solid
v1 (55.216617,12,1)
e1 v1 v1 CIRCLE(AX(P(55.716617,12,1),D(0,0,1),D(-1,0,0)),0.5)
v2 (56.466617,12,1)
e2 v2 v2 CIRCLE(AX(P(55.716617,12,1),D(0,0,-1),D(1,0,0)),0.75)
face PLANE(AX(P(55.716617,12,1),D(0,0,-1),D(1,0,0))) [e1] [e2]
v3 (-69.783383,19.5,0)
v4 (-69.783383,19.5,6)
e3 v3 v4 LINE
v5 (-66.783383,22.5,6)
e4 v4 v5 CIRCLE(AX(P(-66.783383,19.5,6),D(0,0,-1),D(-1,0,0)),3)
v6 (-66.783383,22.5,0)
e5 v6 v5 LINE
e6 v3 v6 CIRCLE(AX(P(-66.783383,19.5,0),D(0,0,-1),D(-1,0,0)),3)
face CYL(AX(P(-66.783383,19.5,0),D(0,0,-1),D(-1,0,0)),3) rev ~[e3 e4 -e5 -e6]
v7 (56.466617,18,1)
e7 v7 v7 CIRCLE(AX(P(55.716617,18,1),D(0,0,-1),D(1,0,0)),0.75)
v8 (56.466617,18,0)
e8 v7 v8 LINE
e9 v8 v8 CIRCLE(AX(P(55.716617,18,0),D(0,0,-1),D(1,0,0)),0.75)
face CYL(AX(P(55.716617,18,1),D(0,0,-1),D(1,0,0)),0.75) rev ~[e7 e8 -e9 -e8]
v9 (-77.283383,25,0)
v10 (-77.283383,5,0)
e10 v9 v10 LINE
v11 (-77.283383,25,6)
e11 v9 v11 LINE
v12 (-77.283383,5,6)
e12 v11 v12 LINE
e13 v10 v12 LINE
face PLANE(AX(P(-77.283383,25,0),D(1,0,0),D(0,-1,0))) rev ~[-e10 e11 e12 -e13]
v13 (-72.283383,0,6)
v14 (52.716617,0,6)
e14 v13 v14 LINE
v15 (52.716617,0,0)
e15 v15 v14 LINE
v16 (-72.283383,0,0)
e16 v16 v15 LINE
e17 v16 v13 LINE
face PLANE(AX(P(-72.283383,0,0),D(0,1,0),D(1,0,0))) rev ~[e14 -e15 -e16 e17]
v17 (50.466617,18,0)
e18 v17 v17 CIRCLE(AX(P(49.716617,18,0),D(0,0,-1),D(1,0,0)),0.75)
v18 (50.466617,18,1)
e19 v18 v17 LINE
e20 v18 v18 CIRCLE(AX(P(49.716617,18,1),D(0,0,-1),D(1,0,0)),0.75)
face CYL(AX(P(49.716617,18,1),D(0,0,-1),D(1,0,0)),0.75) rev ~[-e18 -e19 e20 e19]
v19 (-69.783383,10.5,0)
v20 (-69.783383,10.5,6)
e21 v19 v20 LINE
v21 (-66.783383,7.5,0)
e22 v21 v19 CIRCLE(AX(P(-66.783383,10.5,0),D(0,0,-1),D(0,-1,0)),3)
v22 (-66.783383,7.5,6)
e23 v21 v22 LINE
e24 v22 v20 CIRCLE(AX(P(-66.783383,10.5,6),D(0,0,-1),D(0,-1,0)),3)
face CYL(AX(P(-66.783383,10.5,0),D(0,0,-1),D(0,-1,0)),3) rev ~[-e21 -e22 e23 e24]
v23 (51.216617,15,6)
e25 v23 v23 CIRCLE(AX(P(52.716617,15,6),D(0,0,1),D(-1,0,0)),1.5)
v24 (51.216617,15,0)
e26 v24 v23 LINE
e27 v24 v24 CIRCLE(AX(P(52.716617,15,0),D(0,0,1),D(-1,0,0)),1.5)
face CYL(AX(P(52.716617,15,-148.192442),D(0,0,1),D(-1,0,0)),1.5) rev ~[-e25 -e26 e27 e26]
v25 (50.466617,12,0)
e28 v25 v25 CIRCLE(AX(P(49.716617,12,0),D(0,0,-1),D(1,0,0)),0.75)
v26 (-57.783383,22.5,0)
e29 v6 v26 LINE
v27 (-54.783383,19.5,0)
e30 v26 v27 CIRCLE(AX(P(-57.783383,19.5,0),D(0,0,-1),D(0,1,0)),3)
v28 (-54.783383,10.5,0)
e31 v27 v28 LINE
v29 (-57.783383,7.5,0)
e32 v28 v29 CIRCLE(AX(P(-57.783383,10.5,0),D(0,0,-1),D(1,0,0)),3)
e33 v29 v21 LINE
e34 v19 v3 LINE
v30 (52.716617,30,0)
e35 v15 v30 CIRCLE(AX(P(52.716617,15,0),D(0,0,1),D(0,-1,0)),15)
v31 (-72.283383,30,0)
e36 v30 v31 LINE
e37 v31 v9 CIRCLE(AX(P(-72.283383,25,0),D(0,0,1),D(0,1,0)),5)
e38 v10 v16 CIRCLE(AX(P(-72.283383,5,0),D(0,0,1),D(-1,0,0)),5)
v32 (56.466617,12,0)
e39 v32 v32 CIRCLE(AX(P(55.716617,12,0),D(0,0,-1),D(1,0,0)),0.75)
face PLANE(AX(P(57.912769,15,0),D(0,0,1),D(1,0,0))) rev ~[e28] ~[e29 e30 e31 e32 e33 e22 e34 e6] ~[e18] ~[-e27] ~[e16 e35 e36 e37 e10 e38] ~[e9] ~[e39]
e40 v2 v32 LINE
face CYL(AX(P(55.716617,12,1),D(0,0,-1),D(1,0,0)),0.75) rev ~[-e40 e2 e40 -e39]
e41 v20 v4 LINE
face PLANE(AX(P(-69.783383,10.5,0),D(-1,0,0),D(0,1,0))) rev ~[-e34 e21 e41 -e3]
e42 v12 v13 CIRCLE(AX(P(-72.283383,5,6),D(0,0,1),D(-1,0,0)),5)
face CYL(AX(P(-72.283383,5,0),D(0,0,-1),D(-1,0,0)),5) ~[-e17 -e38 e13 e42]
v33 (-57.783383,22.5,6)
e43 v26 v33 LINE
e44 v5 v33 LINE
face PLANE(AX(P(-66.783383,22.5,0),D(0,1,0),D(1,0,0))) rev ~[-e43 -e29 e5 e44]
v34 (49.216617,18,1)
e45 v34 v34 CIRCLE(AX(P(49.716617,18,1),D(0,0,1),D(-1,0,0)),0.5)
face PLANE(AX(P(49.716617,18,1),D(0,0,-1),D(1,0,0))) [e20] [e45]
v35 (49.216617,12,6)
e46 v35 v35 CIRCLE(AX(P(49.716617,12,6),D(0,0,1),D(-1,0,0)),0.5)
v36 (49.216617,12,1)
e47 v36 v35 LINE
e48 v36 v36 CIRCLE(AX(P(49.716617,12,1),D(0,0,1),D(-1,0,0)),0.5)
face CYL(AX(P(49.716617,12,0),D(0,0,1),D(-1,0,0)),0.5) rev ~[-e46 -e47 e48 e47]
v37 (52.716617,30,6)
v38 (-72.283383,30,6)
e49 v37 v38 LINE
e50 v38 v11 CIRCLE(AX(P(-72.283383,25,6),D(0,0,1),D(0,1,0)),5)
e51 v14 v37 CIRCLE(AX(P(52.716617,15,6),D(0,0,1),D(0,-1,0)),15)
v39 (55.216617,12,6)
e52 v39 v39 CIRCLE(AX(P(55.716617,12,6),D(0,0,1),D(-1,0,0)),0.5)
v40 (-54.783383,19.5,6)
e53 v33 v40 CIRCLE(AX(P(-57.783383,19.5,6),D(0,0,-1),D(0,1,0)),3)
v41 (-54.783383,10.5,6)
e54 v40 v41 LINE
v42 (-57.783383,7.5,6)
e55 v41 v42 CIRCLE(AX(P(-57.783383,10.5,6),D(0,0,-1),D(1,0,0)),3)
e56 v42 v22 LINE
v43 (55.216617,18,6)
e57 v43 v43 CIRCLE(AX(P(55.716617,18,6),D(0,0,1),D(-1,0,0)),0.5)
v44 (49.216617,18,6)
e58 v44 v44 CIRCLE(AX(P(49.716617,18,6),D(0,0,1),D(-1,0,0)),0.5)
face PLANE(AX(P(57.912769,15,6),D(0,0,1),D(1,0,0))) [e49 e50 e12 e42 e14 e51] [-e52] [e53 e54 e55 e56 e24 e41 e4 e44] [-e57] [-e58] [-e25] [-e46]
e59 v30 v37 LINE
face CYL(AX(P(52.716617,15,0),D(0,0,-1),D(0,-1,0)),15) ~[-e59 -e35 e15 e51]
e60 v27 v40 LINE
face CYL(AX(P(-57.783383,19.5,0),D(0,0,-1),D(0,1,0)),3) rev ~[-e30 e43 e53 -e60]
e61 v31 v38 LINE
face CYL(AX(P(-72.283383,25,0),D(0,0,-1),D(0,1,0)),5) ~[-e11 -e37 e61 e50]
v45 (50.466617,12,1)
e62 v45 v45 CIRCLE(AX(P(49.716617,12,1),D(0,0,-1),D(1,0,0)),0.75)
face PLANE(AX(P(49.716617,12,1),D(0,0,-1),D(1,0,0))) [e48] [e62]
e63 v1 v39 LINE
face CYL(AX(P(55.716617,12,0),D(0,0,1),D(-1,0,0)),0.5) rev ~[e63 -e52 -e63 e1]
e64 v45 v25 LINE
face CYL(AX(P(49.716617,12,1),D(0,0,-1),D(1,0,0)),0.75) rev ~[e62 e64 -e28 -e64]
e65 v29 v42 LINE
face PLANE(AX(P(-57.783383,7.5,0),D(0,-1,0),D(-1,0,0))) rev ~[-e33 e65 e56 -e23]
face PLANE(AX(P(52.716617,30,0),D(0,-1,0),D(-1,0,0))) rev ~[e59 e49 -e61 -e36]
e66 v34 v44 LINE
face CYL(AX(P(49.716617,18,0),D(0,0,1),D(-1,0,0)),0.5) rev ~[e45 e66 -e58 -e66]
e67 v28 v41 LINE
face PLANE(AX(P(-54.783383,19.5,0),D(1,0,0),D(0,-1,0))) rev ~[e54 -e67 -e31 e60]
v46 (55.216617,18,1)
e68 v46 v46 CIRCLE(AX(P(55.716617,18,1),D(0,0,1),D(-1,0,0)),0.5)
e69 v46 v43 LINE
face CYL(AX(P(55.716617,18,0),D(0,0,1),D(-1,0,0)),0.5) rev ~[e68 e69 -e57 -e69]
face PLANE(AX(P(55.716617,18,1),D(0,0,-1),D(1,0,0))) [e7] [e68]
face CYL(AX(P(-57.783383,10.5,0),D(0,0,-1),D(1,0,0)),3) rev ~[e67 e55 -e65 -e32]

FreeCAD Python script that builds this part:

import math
import FreeCAD as App
import Part
import Sketcher
from FreeCAD import Vector

doc = App.newDocument("Part")
body = doc.addObject("PartDesign::Body", "Body")

sketch1 = body.newObject("Sketcher::SketchObject", "Sketch")
sketch1.AttachmentSupport = (doc.getObject("XY_Plane"), [""])
sketch1.MapMode = "FlatFace"
sketch1.addGeometry(Part.ArcOfCircle(Part.Circle(Vector(52.716617, 15, 0), Vector(0, 0, 1), 15), math.radians(-90), math.radians(90)), False)
sketch1.addGeometry(Part.LineSegment(Vector(52.716617, 30, 0), Vector(-72.283383, 30, 0)), False)
sketch1.addGeometry(Part.ArcOfCircle(Part.Circle(Vector(-72.283383, 25, 0), Vector(0, 0, 1), 5), math.radians(90), math.radians(180)), False)
sketch1.addGeometry(Part.LineSegment(Vector(-77.283383, 25, 0), Vector(-77.283383, 5, 0)), False)
sketch1.addGeometry(Part.ArcOfCircle(Part.Circle(Vector(-72.283383, 5, 0), Vector(0, 0, 1), 5), math.radians(180), math.radians(270)), False)
sketch1.addGeometry(Part.LineSegment(Vector(-72.283383, 0, 0), Vector(52.716617, 0, 0)), False)
sketch1.addGeometry(Part.ArcOfCircle(Part.Circle(Vector(-66.783383, 19.5, 0), Vector(0, 0, 1), 3), math.radians(90), math.radians(180)), False)
sketch1.addGeometry(Part.LineSegment(Vector(-66.783383, 22.5, 0), Vector(-57.783383, 22.5, 0)), False)
sketch1.addGeometry(Part.ArcOfCircle(Part.Circle(Vector(-57.783383, 19.5, 0), Vector(0, 0, 1), 3), math.radians(0), math.radians(90)), False)
sketch1.addGeometry(Part.LineSegment(Vector(-54.783383, 19.5, 0), Vector(-54.783383, 10.5, 0)), False)
sketch1.addGeometry(Part.ArcOfCircle(Part.Circle(Vector(-57.783383, 10.5, 0), Vector(0, 0, 1), 3), math.radians(-90), math.radians(0)), False)
sketch1.addGeometry(Part.LineSegment(Vector(-57.783383, 7.5, 0), Vector(-66.783383, 7.5, 0)), False)
sketch1.addGeometry(Part.ArcOfCircle(Part.Circle(Vector(-66.783383, 10.5, 0), Vector(0, 0, 1), 3), math.radians(180), math.radians(270)), False)
sketch1.addGeometry(Part.LineSegment(Vector(-69.783383, 10.5, 0), Vector(-69.783383, 19.5, 0)), False)
sketch1.addConstraint(Sketcher.Constraint("Tangent", 0, 2, 1, 1))
sketch1.addConstraint(Sketcher.Constraint("Tangent", 1, 2, 2, 1))
sketch1.addConstraint(Sketcher.Constraint("Tangent", 2, 2, 3, 1))
sketch1.addConstraint(Sketcher.Constraint("Tangent", 3, 2, 4, 1))
sketch1.addConstraint(Sketcher.Constraint("Tangent", 4, 2, 5, 1))
sketch1.addConstraint(Sketcher.Constraint("Tangent", 5, 2, 0, 1))
sketch1.addConstraint(Sketcher.Constraint("Tangent", 6, 1, 7, 1))
sketch1.addConstraint(Sketcher.Constraint("Tangent", 7, 2, 8, 2))
sketch1.addConstraint(Sketcher.Constraint("Tangent", 8, 1, 9, 1))
sketch1.addConstraint(Sketcher.Constraint("Tangent", 9, 2, 10, 2))
sketch1.addConstraint(Sketcher.Constraint("Tangent", 10, 1, 11, 1))
sketch1.addConstraint(Sketcher.Constraint("Tangent", 11, 2, 12, 2))
sketch1.addConstraint(Sketcher.Constraint("Tangent", 12, 1, 13, 1))
sketch1.addConstraint(Sketcher.Constraint("Tangent", 13, 2, 6, 2))
sketch1.addConstraint(Sketcher.Constraint("Horizontal", 1))
sketch1.addConstraint(Sketcher.Constraint("Vertical", 3))
sketch1.addConstraint(Sketcher.Constraint("Horizontal", 5))
sketch1.addConstraint(Sketcher.Constraint("Horizontal", 7))
sketch1.addConstraint(Sketcher.Constraint("Vertical", 9))
sketch1.addConstraint(Sketcher.Constraint("Horizontal", 11))
sketch1.addConstraint(Sketcher.Constraint("Vertical", 13))
sketch1.addConstraint(Sketcher.Constraint("Equal", 2, 4))
sketch1.addConstraint(Sketcher.Constraint("Equal", 6, 8))
sketch1.addConstraint(Sketcher.Constraint("Equal", 8, 10))
sketch1.addConstraint(Sketcher.Constraint("Equal", 10, 12))
sketch1.addConstraint(Sketcher.Constraint("PointOnObject", 4, 2, -1))
sketch1.addConstraint(Sketcher.Constraint("Equal", 11, 9))
sketch1.addConstraint(Sketcher.Constraint("Radius", 0, 15.0))
sketch1.addConstraint(Sketcher.Constraint("Radius", 2, 5.0))
sketch1.addConstraint(Sketcher.Constraint("Radius", 6, 3.0))
sketch1.addConstraint(Sketcher.Constraint("DistanceX", 1, 2, 1, 1, 125.0))
sketch1.addConstraint(Sketcher.Constraint("DistanceX", 7, 1, 7, 2, 9.0))
sketch1.addConstraint(Sketcher.Constraint("DistanceY", -1, 1, 6, 3, 19.5))
sketch1.addConstraint(Sketcher.Constraint("DistanceX", 2, 3, 6, 3, 5.5))
sketch1.addConstraint(Sketcher.Constraint("DistanceX", -1, 1, 0, 3, 52.716617))
pad1 = body.newObject("PartDesign::Pad", "Pad")
pad1.Profile = sketch1
pad1.Length = 6

sketch2 = body.newObject("Sketcher::SketchObject", "Sketch001")
sketch2.AttachmentSupport = (doc.getObject("XY_Plane"), [""])
sketch2.MapMode = "FlatFace"
sketch2.addGeometry(Part.Circle(Vector(52.716617, 15, 0), Vector(0, 0, 1), 1.5), False)
sketch2.addConstraint(Sketcher.Constraint("Diameter", 0, 3.0))
sketch2.addConstraint(Sketcher.Constraint("DistanceY", -1, 1, 0, 3, 15.0))
sketch2.addConstraint(Sketcher.Constraint("DistanceX", -1, 1, 0, 3, 52.716617))
doc.recompute()
hole = body.newObject("PartDesign::Hole", "Hole")
hole.Profile = sketch2
hole.ThreadType = "None"
hole.Diameter = 3
hole.DepthType = "ThroughAll"
hole.Reversed = True

sketch3 = body.newObject("Sketcher::SketchObject", "Sketch002")
sketch3.AttachmentSupport = (doc.getObject("XY_Plane"), [""])
sketch3.MapMode = "FlatFace"
sketch3.addGeometry(Part.Circle(Vector(55.716617, 18, 0), Vector(0, 0, 1), 0.5), False)
sketch3.addGeometry(Part.Circle(Vector(55.716617, 12, 0), Vector(0, 0, 1), 0.5), False)
sketch3.addGeometry(Part.Circle(Vector(49.716617, 12, 0), Vector(0, 0, 1), 0.5), False)
sketch3.addGeometry(Part.Circle(Vector(49.716617, 18, 0), Vector(0, 0, 1), 0.5), False)
sketch3.addConstraint(Sketcher.Constraint("Equal", 0, 1))
sketch3.addConstraint(Sketcher.Constraint("Equal", 1, 2))
sketch3.addConstraint(Sketcher.Constraint("Equal", 2, 3))
sketch3.addConstraint(Sketcher.Constraint("Horizontal", 1, 3, 2, 3))
sketch3.addConstraint(Sketcher.Constraint("Horizontal", 0, 3, 3, 3))
sketch3.addConstraint(Sketcher.Constraint("Vertical", 0, 3, 1, 3))
sketch3.addConstraint(Sketcher.Constraint("Vertical", 2, 3, 3, 3))
sketch3.addConstraint(Sketcher.Constraint("Diameter", 0, 1.0))
sketch3.addConstraint(Sketcher.Constraint("DistanceY", -1, 1, 0, 3, 18.0))
sketch3.addConstraint(Sketcher.Constraint("DistanceY", -1, 1, 1, 3, 12.0))
sketch3.addConstraint(Sketcher.Constraint("DistanceX", 2, 3, 1, 3, 6.0))
sketch3.addConstraint(Sketcher.Constraint("DistanceX", -1, 1, 0, 3, 55.716617))
doc.recompute()
hole2 = body.newObject("PartDesign::Hole", "Hole001")
hole2.Profile = sketch3
hole2.ThreadType = "None"
hole2.Diameter = 1
hole2.DepthType = "ThroughAll"
hole2.HoleCutType = "Counterbore"
hole2.HoleCutDiameter = 1.5
hole2.HoleCutDepth = 1
hole2.Reversed = True

doc.recompute()
